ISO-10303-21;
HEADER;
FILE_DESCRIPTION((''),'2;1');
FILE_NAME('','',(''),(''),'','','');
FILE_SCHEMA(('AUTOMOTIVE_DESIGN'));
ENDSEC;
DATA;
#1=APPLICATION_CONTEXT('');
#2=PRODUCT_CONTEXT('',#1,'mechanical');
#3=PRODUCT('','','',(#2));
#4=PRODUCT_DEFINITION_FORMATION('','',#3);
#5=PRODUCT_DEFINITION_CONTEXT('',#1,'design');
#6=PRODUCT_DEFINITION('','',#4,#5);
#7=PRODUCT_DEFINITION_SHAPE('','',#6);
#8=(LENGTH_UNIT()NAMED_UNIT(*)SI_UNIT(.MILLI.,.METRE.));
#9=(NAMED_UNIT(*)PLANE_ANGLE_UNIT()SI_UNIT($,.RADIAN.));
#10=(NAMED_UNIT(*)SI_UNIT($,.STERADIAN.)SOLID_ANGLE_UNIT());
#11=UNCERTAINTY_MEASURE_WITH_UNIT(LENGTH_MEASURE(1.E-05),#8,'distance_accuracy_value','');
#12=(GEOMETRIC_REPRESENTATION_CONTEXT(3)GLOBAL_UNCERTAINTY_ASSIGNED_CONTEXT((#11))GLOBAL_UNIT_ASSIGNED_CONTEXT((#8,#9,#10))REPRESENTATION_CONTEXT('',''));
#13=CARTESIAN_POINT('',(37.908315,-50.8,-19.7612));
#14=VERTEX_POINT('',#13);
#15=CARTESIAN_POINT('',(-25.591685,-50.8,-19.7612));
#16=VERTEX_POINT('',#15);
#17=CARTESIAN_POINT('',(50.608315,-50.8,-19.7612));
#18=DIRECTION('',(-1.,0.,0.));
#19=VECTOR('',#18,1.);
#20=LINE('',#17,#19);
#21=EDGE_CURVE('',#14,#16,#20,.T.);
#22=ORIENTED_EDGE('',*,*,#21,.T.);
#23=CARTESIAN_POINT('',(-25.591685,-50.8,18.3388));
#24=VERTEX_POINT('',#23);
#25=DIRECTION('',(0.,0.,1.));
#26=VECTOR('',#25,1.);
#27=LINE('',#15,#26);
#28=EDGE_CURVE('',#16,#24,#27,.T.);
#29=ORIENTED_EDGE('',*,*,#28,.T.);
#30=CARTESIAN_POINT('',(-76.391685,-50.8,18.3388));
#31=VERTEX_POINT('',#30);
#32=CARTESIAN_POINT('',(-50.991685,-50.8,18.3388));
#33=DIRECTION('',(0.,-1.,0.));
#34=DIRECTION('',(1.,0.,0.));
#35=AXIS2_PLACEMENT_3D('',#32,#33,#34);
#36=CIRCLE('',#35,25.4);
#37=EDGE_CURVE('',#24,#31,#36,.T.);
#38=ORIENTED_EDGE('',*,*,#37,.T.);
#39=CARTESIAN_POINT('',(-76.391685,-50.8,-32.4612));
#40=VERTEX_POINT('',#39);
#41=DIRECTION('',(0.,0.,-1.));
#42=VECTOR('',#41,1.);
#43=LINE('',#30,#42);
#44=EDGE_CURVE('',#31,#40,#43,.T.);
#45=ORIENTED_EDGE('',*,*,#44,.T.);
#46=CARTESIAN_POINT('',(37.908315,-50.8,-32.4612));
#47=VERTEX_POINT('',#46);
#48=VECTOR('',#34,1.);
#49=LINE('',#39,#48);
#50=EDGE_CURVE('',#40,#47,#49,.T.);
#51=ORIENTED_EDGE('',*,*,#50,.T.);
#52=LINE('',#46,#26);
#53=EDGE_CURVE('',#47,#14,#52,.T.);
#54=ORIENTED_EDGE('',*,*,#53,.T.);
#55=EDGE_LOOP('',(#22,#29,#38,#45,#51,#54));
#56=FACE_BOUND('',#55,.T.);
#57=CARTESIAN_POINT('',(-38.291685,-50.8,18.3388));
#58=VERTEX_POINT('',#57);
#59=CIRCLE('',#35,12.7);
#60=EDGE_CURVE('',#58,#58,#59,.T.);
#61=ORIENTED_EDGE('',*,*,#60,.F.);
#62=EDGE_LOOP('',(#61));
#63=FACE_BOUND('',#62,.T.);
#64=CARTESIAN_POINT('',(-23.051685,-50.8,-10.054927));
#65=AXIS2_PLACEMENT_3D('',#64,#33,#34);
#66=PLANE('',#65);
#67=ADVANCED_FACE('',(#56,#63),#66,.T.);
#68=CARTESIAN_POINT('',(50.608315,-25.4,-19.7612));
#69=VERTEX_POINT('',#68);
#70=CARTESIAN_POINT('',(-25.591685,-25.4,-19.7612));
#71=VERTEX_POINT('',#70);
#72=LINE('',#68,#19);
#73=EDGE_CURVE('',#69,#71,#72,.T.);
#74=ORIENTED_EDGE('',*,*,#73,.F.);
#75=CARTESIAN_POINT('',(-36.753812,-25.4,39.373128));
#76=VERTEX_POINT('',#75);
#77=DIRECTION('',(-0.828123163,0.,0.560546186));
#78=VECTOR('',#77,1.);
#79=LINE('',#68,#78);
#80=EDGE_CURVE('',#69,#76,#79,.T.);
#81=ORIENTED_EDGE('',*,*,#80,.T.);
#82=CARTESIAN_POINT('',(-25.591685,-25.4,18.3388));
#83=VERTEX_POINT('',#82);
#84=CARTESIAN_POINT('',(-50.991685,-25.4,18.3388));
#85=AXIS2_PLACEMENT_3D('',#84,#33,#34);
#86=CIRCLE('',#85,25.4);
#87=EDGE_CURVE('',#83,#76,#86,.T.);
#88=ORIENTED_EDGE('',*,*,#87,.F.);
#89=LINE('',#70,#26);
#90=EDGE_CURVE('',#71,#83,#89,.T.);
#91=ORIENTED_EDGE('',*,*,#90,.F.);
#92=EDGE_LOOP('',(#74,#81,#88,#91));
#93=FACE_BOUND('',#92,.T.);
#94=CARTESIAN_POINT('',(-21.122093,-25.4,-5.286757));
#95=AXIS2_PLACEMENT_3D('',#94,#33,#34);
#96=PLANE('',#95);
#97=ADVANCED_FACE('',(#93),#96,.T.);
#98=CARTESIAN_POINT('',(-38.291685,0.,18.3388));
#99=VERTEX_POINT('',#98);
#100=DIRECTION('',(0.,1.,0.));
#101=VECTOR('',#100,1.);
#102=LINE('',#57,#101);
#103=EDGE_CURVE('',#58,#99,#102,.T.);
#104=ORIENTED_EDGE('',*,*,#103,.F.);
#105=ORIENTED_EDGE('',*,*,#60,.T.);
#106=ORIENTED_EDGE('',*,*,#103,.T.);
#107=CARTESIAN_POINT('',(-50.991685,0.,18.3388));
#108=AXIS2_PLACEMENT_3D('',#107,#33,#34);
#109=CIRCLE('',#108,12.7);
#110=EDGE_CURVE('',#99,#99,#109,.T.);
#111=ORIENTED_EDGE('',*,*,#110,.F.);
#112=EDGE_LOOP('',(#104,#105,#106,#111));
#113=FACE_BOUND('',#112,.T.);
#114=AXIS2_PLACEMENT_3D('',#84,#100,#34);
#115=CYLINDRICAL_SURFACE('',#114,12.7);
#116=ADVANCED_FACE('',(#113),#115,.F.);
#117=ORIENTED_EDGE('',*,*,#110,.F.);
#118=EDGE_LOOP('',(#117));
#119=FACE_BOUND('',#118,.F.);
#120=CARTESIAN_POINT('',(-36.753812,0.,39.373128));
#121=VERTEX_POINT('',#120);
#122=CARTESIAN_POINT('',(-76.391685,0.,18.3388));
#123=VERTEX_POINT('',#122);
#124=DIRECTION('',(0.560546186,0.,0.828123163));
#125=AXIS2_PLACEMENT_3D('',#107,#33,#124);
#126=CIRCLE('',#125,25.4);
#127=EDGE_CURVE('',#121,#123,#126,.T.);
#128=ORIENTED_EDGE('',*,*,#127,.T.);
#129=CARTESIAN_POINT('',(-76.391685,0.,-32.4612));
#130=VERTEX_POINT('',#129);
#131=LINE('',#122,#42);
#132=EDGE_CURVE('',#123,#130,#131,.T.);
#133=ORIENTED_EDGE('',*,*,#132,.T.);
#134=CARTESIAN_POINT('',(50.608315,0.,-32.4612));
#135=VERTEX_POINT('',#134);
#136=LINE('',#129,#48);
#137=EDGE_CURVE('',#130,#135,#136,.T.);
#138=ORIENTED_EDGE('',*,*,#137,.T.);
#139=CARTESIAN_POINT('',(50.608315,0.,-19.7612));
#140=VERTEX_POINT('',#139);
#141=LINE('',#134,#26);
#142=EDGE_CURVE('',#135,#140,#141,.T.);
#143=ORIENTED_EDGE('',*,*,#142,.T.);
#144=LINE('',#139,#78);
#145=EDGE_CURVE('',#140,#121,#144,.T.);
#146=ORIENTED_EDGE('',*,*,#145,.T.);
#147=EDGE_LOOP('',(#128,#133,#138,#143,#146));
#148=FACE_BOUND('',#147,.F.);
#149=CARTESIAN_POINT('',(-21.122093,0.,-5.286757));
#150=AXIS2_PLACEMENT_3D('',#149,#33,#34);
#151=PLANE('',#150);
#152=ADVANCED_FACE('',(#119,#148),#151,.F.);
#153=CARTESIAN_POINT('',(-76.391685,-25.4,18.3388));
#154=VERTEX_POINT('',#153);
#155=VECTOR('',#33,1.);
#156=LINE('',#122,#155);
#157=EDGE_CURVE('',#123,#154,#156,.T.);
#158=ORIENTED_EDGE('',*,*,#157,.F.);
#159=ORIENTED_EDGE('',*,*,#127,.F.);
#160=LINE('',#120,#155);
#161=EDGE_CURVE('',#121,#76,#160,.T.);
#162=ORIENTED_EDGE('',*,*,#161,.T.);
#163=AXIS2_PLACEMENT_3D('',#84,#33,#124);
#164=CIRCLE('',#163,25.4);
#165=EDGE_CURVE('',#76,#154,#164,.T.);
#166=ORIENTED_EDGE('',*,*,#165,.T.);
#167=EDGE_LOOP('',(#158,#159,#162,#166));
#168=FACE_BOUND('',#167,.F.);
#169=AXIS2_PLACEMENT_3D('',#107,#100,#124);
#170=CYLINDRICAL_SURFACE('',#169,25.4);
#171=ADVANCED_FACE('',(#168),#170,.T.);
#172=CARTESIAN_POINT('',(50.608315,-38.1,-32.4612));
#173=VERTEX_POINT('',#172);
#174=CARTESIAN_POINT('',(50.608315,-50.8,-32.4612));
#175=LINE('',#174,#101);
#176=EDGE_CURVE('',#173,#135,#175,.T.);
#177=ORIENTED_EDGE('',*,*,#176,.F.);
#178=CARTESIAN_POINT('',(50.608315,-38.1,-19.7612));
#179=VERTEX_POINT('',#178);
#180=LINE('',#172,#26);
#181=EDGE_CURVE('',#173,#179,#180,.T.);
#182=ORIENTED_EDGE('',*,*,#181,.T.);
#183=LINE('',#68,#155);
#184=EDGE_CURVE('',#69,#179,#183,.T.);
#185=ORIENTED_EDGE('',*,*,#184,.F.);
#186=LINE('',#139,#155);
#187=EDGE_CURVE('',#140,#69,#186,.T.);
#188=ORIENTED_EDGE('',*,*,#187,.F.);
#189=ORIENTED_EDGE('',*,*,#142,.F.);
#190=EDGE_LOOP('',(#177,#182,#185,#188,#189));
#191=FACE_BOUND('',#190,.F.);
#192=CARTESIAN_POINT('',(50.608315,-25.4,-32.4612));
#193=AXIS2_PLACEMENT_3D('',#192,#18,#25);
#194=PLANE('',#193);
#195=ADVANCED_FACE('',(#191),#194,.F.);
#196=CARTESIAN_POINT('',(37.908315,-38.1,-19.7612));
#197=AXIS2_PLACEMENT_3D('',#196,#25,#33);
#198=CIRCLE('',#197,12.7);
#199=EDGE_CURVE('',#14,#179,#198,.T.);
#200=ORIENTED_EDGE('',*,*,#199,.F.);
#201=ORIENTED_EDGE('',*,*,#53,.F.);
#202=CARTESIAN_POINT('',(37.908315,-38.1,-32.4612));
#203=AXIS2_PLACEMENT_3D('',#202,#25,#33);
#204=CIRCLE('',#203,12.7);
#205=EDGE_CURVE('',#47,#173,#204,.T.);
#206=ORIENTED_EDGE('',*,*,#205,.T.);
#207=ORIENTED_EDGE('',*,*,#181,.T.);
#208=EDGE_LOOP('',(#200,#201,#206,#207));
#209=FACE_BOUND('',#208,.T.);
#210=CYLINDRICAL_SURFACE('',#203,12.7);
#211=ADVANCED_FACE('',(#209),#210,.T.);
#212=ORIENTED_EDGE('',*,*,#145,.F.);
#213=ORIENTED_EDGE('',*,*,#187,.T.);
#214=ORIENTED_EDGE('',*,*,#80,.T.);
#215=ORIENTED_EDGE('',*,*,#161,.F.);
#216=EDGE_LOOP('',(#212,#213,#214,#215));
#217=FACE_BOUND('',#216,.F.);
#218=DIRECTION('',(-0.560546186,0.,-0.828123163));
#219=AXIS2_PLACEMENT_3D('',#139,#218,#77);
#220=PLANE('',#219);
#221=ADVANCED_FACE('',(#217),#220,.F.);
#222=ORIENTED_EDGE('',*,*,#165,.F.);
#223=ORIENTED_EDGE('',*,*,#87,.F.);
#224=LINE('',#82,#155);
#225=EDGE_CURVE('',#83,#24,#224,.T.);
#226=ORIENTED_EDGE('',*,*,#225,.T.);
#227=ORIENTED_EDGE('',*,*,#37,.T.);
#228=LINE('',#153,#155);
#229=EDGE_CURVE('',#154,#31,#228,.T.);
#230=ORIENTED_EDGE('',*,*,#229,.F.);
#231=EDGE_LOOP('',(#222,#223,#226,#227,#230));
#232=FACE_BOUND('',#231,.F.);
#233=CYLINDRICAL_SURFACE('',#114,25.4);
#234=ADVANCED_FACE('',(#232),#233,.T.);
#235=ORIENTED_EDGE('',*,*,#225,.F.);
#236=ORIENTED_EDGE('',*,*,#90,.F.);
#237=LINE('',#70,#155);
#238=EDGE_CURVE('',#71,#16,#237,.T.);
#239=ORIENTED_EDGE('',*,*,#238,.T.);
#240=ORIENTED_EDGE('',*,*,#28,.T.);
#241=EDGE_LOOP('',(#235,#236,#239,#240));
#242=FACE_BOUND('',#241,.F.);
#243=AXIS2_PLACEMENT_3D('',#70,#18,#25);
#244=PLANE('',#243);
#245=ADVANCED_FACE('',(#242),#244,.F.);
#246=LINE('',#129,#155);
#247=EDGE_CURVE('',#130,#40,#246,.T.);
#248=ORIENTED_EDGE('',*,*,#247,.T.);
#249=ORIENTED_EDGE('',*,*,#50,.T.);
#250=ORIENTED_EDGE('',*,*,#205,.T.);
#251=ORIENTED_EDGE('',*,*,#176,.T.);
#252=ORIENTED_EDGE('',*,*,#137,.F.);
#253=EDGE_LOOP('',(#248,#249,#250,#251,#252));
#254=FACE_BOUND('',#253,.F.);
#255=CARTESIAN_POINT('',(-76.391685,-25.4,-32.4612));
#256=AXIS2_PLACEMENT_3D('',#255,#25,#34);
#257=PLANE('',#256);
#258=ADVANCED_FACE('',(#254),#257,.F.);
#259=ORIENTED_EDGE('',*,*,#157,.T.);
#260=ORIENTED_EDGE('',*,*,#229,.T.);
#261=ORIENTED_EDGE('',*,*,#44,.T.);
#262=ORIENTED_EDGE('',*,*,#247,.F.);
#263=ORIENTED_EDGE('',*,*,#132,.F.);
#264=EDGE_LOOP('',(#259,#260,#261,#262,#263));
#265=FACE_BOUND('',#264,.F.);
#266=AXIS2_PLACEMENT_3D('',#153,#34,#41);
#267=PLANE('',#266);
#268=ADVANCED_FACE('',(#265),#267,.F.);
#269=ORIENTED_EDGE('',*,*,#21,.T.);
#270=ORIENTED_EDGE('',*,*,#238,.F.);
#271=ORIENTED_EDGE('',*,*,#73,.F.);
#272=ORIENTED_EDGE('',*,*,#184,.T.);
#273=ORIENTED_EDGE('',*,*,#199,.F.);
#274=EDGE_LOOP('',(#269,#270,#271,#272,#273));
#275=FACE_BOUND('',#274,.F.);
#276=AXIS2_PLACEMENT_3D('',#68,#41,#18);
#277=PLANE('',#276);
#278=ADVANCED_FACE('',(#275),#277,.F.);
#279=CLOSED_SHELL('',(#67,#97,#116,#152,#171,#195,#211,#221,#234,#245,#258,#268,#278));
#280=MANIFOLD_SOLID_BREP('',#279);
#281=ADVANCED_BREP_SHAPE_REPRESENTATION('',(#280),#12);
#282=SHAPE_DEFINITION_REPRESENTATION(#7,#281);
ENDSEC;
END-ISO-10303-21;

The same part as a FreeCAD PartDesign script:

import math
import FreeCAD as App
import Part
import Sketcher

V = App.Vector
Q = App.Units.Quantity


def edges_at(feature, points):
    """Names of the edges that pass closest to the given points."""
    edges = feature.Shape.Edges
    near = lambda p: min(range(len(edges)), key=lambda i: edges[i].distToShape(Part.Vertex(*p))[0])
    return sorted({f"Edge{near(p) + 1}" for p in points})

doc = App.newDocument("Part")
params = doc.addObject("Spreadsheet::Sheet", "Params")
for row, (alias, value) in enumerate([
    ("sketch1_diameter", "1 in"),
    ("sketch1_radius", "1 in"),
    ("sketch1_width", "5 in"),
    ("sketch1_height", "2 in"),
    ("sketch1_height2", "0.5 in"),
    ("pad1_length", "1 in"),
    ("sketch2_diameter", "1 in"),
    ("sketch2_radius", "1 in"),
    ("sketch2_width", "5 in"),
    ("sketch2_height", "2 in"),
    ("sketch2_height2", "1.5 in"),
    ("pad2_length", "1 in"),
    ("fillet_radius", "0.5 in"),
], start=1):
    params.set(f"A{row}", alias)
    params.set(f"B{row}", "=" + value)
    params.setAlias(f"B{row}", alias)

body = doc.addObject("PartDesign::Body", "Body")

# Sketch on XZ plane
sketch1 = doc.addObject("Sketcher::SketchObject", "Sketch")
body.addObject(sketch1)
sketch1.AttachmentSupport = (doc.XZ_Plane, [""])
sketch1.MapMode = "FlatFace"
sketch1.addGeometry([
    Part.LineSegment(V(50.608315, -19.7612, 0), V(-36.753812, 39.373128, 0)),  # 0
    Part.ArcOfCircle(Part.Circle(V(-50.991685, 18.3388, 0), V(0, 0, 1), 25.4), math.radians(55.906421), math.radians(180)),  # 1
    Part.LineSegment(V(-76.391685, 18.3388, 0), V(-76.391685, -32.4612, 0)),  # 2
    Part.LineSegment(V(-76.391685, -32.4612, 0), V(50.608315, -32.4612, 0)),  # 3
    Part.LineSegment(V(50.608315, -32.4612, 0), V(50.608315, -19.7612, 0)),  # 4
    Part.Circle(V(-50.991685, 18.3388, 0), V(0, 0, 1), 12.7),  # 5
], False)
sketch1.addConstraint([
    Sketcher.Constraint("Tangent", 0, 2, 1, 1),
    Sketcher.Constraint("Tangent", 1, 2, 2, 1),
    Sketcher.Constraint("Coincident", 2, 2, 3, 1),
    Sketcher.Constraint("Coincident", 3, 2, 4, 1),
    Sketcher.Constraint("Coincident", 4, 2, 0, 1),
    Sketcher.Constraint("Vertical", 2),
    Sketcher.Constraint("Horizontal", 3),
    Sketcher.Constraint("Vertical", 4),
    Sketcher.Constraint("Coincident", 5, 3, 1, 3),
    Sketcher.Constraint("Diameter", 5, Q("1 in")),
    Sketcher.Constraint("Radius", 1, Q("1 in")),
    Sketcher.Constraint("DistanceX", 3, 1, 3, 2, Q("5 in")),
    Sketcher.Constraint("DistanceY", 2, 2, 2, 1, Q("2 in")),
    Sketcher.Constraint("DistanceY", 4, 1, 4, 2, Q("0.5 in")),
    Sketcher.Constraint("DistanceY", -1, 1, 1, 3, Q("0.722 in")),
    Sketcher.Constraint("DistanceX", 1, 3, -1, 1, Q("50.991685 mm")),
])
sketch1.setExpression("Constraints[9]", "Params.sketch1_diameter")
sketch1.setExpression("Constraints[10]", "Params.sketch1_radius")
sketch1.setExpression("Constraints[11]", "Params.sketch1_width")
sketch1.setExpression("Constraints[12]", "Params.sketch1_height")
sketch1.setExpression("Constraints[13]", "Params.sketch1_height2")
pad1 = doc.addObject("PartDesign::Pad", "Pad")
body.addObject(pad1)
pad1.Profile = sketch1
pad1.setExpression("Length", "Params.pad1_length")

# Sketch on XZ plane
sketch2 = doc.addObject("Sketcher::SketchObject", "Sketch001")
body.addObject(sketch2)
sketch2.AttachmentSupport = (doc.XZ_Plane, [""])
sketch2.MapMode = "FlatFace"
sketch2.AttachmentOffset = App.Placement(V(0, 0, 1 * 25.4), App.Rotation())
sketch2.addGeometry([
    Part.LineSegment(V(-25.591685, -19.7612, 0), V(-25.591685, 18.3388, 0)),  # 0
    Part.ArcOfCircle(Part.Circle(V(-50.991685, 18.3388, 0), V(0, 0, 1), 25.4), math.radians(0), math.radians(180)),  # 1
    Part.LineSegment(V(-76.391685, 18.3388, 0), V(-76.391685, -32.4612, 0)),  # 2
    Part.LineSegment(V(-76.391685, -32.4612, 0), V(50.608315, -32.4612, 0)),  # 3
    Part.LineSegment(V(50.608315, -32.4612, 0), V(50.608315, -19.7612, 0)),  # 4
    Part.LineSegment(V(50.608315, -19.7612, 0), V(-25.591685, -19.7612, 0)),  # 5
    Part.Circle(V(-50.991685, 18.3388, 0), V(0, 0, 1), 12.7),  # 6
], False)
sketch2.addConstraint([
    Sketcher.Constraint("Tangent", 0, 2, 1, 1),
    Sketcher.Constraint("Tangent", 1, 2, 2, 1),
    Sketcher.Constraint("Coincident", 2, 2, 3, 1),
    Sketcher.Constraint("Coincident", 3, 2, 4, 1),
    Sketcher.Constraint("Coincident", 4, 2, 5, 1),
    Sketcher.Constraint("Coincident", 5, 2, 0, 1),
    Sketcher.Constraint("Vertical", 0),
    Sketcher.Constraint("Vertical", 2),
    Sketcher.Constraint("Horizontal", 3),
    Sketcher.Constraint("Vertical", 4),
    Sketcher.Constraint("Horizontal", 5),
    Sketcher.Constraint("Coincident", 6, 3, 1, 3),
    Sketcher.Constraint("Diameter", 6, Q("1 in")),
    Sketcher.Constraint("Radius", 1, Q("1 in")),
    Sketcher.Constraint("DistanceX", 3, 1, 3, 2, Q("5 in")),
    Sketcher.Constraint("DistanceY", 2, 2, 2, 1, Q("2 in")),
    Sketcher.Constraint("DistanceY", 0, 1, 0, 2, Q("1.5 in")),
    Sketcher.Constraint("DistanceY", -1, 1, 1, 3, Q("0.722 in")),
    Sketcher.Constraint("DistanceX", 1, 3, -1, 1, Q("50.991685 mm")),
])
sketch2.setExpression("Constraints[12]", "Params.sketch2_diameter")
sketch2.setExpression("Constraints[13]", "Params.sketch2_radius")
sketch2.setExpression("Constraints[14]", "Params.sketch2_width")
sketch2.setExpression("Constraints[15]", "Params.sketch2_height")
sketch2.setExpression("Constraints[16]", "Params.sketch2_height2")
pad2 = doc.addObject("PartDesign::Pad", "Pad001")
body.addObject(pad2)
pad2.Profile = sketch2
pad2.setExpression("Length", "Params.pad2_length")
doc.recompute()

fillet = doc.addObject("PartDesign::Fillet", "Fillet")
body.addObject(fillet)
fillet.Base = (pad2, edges_at(pad2, [(50.608, -50.8, -26.111)]))
fillet.setExpression("Radius", "Params.fillet_radius")

doc.recompute()
